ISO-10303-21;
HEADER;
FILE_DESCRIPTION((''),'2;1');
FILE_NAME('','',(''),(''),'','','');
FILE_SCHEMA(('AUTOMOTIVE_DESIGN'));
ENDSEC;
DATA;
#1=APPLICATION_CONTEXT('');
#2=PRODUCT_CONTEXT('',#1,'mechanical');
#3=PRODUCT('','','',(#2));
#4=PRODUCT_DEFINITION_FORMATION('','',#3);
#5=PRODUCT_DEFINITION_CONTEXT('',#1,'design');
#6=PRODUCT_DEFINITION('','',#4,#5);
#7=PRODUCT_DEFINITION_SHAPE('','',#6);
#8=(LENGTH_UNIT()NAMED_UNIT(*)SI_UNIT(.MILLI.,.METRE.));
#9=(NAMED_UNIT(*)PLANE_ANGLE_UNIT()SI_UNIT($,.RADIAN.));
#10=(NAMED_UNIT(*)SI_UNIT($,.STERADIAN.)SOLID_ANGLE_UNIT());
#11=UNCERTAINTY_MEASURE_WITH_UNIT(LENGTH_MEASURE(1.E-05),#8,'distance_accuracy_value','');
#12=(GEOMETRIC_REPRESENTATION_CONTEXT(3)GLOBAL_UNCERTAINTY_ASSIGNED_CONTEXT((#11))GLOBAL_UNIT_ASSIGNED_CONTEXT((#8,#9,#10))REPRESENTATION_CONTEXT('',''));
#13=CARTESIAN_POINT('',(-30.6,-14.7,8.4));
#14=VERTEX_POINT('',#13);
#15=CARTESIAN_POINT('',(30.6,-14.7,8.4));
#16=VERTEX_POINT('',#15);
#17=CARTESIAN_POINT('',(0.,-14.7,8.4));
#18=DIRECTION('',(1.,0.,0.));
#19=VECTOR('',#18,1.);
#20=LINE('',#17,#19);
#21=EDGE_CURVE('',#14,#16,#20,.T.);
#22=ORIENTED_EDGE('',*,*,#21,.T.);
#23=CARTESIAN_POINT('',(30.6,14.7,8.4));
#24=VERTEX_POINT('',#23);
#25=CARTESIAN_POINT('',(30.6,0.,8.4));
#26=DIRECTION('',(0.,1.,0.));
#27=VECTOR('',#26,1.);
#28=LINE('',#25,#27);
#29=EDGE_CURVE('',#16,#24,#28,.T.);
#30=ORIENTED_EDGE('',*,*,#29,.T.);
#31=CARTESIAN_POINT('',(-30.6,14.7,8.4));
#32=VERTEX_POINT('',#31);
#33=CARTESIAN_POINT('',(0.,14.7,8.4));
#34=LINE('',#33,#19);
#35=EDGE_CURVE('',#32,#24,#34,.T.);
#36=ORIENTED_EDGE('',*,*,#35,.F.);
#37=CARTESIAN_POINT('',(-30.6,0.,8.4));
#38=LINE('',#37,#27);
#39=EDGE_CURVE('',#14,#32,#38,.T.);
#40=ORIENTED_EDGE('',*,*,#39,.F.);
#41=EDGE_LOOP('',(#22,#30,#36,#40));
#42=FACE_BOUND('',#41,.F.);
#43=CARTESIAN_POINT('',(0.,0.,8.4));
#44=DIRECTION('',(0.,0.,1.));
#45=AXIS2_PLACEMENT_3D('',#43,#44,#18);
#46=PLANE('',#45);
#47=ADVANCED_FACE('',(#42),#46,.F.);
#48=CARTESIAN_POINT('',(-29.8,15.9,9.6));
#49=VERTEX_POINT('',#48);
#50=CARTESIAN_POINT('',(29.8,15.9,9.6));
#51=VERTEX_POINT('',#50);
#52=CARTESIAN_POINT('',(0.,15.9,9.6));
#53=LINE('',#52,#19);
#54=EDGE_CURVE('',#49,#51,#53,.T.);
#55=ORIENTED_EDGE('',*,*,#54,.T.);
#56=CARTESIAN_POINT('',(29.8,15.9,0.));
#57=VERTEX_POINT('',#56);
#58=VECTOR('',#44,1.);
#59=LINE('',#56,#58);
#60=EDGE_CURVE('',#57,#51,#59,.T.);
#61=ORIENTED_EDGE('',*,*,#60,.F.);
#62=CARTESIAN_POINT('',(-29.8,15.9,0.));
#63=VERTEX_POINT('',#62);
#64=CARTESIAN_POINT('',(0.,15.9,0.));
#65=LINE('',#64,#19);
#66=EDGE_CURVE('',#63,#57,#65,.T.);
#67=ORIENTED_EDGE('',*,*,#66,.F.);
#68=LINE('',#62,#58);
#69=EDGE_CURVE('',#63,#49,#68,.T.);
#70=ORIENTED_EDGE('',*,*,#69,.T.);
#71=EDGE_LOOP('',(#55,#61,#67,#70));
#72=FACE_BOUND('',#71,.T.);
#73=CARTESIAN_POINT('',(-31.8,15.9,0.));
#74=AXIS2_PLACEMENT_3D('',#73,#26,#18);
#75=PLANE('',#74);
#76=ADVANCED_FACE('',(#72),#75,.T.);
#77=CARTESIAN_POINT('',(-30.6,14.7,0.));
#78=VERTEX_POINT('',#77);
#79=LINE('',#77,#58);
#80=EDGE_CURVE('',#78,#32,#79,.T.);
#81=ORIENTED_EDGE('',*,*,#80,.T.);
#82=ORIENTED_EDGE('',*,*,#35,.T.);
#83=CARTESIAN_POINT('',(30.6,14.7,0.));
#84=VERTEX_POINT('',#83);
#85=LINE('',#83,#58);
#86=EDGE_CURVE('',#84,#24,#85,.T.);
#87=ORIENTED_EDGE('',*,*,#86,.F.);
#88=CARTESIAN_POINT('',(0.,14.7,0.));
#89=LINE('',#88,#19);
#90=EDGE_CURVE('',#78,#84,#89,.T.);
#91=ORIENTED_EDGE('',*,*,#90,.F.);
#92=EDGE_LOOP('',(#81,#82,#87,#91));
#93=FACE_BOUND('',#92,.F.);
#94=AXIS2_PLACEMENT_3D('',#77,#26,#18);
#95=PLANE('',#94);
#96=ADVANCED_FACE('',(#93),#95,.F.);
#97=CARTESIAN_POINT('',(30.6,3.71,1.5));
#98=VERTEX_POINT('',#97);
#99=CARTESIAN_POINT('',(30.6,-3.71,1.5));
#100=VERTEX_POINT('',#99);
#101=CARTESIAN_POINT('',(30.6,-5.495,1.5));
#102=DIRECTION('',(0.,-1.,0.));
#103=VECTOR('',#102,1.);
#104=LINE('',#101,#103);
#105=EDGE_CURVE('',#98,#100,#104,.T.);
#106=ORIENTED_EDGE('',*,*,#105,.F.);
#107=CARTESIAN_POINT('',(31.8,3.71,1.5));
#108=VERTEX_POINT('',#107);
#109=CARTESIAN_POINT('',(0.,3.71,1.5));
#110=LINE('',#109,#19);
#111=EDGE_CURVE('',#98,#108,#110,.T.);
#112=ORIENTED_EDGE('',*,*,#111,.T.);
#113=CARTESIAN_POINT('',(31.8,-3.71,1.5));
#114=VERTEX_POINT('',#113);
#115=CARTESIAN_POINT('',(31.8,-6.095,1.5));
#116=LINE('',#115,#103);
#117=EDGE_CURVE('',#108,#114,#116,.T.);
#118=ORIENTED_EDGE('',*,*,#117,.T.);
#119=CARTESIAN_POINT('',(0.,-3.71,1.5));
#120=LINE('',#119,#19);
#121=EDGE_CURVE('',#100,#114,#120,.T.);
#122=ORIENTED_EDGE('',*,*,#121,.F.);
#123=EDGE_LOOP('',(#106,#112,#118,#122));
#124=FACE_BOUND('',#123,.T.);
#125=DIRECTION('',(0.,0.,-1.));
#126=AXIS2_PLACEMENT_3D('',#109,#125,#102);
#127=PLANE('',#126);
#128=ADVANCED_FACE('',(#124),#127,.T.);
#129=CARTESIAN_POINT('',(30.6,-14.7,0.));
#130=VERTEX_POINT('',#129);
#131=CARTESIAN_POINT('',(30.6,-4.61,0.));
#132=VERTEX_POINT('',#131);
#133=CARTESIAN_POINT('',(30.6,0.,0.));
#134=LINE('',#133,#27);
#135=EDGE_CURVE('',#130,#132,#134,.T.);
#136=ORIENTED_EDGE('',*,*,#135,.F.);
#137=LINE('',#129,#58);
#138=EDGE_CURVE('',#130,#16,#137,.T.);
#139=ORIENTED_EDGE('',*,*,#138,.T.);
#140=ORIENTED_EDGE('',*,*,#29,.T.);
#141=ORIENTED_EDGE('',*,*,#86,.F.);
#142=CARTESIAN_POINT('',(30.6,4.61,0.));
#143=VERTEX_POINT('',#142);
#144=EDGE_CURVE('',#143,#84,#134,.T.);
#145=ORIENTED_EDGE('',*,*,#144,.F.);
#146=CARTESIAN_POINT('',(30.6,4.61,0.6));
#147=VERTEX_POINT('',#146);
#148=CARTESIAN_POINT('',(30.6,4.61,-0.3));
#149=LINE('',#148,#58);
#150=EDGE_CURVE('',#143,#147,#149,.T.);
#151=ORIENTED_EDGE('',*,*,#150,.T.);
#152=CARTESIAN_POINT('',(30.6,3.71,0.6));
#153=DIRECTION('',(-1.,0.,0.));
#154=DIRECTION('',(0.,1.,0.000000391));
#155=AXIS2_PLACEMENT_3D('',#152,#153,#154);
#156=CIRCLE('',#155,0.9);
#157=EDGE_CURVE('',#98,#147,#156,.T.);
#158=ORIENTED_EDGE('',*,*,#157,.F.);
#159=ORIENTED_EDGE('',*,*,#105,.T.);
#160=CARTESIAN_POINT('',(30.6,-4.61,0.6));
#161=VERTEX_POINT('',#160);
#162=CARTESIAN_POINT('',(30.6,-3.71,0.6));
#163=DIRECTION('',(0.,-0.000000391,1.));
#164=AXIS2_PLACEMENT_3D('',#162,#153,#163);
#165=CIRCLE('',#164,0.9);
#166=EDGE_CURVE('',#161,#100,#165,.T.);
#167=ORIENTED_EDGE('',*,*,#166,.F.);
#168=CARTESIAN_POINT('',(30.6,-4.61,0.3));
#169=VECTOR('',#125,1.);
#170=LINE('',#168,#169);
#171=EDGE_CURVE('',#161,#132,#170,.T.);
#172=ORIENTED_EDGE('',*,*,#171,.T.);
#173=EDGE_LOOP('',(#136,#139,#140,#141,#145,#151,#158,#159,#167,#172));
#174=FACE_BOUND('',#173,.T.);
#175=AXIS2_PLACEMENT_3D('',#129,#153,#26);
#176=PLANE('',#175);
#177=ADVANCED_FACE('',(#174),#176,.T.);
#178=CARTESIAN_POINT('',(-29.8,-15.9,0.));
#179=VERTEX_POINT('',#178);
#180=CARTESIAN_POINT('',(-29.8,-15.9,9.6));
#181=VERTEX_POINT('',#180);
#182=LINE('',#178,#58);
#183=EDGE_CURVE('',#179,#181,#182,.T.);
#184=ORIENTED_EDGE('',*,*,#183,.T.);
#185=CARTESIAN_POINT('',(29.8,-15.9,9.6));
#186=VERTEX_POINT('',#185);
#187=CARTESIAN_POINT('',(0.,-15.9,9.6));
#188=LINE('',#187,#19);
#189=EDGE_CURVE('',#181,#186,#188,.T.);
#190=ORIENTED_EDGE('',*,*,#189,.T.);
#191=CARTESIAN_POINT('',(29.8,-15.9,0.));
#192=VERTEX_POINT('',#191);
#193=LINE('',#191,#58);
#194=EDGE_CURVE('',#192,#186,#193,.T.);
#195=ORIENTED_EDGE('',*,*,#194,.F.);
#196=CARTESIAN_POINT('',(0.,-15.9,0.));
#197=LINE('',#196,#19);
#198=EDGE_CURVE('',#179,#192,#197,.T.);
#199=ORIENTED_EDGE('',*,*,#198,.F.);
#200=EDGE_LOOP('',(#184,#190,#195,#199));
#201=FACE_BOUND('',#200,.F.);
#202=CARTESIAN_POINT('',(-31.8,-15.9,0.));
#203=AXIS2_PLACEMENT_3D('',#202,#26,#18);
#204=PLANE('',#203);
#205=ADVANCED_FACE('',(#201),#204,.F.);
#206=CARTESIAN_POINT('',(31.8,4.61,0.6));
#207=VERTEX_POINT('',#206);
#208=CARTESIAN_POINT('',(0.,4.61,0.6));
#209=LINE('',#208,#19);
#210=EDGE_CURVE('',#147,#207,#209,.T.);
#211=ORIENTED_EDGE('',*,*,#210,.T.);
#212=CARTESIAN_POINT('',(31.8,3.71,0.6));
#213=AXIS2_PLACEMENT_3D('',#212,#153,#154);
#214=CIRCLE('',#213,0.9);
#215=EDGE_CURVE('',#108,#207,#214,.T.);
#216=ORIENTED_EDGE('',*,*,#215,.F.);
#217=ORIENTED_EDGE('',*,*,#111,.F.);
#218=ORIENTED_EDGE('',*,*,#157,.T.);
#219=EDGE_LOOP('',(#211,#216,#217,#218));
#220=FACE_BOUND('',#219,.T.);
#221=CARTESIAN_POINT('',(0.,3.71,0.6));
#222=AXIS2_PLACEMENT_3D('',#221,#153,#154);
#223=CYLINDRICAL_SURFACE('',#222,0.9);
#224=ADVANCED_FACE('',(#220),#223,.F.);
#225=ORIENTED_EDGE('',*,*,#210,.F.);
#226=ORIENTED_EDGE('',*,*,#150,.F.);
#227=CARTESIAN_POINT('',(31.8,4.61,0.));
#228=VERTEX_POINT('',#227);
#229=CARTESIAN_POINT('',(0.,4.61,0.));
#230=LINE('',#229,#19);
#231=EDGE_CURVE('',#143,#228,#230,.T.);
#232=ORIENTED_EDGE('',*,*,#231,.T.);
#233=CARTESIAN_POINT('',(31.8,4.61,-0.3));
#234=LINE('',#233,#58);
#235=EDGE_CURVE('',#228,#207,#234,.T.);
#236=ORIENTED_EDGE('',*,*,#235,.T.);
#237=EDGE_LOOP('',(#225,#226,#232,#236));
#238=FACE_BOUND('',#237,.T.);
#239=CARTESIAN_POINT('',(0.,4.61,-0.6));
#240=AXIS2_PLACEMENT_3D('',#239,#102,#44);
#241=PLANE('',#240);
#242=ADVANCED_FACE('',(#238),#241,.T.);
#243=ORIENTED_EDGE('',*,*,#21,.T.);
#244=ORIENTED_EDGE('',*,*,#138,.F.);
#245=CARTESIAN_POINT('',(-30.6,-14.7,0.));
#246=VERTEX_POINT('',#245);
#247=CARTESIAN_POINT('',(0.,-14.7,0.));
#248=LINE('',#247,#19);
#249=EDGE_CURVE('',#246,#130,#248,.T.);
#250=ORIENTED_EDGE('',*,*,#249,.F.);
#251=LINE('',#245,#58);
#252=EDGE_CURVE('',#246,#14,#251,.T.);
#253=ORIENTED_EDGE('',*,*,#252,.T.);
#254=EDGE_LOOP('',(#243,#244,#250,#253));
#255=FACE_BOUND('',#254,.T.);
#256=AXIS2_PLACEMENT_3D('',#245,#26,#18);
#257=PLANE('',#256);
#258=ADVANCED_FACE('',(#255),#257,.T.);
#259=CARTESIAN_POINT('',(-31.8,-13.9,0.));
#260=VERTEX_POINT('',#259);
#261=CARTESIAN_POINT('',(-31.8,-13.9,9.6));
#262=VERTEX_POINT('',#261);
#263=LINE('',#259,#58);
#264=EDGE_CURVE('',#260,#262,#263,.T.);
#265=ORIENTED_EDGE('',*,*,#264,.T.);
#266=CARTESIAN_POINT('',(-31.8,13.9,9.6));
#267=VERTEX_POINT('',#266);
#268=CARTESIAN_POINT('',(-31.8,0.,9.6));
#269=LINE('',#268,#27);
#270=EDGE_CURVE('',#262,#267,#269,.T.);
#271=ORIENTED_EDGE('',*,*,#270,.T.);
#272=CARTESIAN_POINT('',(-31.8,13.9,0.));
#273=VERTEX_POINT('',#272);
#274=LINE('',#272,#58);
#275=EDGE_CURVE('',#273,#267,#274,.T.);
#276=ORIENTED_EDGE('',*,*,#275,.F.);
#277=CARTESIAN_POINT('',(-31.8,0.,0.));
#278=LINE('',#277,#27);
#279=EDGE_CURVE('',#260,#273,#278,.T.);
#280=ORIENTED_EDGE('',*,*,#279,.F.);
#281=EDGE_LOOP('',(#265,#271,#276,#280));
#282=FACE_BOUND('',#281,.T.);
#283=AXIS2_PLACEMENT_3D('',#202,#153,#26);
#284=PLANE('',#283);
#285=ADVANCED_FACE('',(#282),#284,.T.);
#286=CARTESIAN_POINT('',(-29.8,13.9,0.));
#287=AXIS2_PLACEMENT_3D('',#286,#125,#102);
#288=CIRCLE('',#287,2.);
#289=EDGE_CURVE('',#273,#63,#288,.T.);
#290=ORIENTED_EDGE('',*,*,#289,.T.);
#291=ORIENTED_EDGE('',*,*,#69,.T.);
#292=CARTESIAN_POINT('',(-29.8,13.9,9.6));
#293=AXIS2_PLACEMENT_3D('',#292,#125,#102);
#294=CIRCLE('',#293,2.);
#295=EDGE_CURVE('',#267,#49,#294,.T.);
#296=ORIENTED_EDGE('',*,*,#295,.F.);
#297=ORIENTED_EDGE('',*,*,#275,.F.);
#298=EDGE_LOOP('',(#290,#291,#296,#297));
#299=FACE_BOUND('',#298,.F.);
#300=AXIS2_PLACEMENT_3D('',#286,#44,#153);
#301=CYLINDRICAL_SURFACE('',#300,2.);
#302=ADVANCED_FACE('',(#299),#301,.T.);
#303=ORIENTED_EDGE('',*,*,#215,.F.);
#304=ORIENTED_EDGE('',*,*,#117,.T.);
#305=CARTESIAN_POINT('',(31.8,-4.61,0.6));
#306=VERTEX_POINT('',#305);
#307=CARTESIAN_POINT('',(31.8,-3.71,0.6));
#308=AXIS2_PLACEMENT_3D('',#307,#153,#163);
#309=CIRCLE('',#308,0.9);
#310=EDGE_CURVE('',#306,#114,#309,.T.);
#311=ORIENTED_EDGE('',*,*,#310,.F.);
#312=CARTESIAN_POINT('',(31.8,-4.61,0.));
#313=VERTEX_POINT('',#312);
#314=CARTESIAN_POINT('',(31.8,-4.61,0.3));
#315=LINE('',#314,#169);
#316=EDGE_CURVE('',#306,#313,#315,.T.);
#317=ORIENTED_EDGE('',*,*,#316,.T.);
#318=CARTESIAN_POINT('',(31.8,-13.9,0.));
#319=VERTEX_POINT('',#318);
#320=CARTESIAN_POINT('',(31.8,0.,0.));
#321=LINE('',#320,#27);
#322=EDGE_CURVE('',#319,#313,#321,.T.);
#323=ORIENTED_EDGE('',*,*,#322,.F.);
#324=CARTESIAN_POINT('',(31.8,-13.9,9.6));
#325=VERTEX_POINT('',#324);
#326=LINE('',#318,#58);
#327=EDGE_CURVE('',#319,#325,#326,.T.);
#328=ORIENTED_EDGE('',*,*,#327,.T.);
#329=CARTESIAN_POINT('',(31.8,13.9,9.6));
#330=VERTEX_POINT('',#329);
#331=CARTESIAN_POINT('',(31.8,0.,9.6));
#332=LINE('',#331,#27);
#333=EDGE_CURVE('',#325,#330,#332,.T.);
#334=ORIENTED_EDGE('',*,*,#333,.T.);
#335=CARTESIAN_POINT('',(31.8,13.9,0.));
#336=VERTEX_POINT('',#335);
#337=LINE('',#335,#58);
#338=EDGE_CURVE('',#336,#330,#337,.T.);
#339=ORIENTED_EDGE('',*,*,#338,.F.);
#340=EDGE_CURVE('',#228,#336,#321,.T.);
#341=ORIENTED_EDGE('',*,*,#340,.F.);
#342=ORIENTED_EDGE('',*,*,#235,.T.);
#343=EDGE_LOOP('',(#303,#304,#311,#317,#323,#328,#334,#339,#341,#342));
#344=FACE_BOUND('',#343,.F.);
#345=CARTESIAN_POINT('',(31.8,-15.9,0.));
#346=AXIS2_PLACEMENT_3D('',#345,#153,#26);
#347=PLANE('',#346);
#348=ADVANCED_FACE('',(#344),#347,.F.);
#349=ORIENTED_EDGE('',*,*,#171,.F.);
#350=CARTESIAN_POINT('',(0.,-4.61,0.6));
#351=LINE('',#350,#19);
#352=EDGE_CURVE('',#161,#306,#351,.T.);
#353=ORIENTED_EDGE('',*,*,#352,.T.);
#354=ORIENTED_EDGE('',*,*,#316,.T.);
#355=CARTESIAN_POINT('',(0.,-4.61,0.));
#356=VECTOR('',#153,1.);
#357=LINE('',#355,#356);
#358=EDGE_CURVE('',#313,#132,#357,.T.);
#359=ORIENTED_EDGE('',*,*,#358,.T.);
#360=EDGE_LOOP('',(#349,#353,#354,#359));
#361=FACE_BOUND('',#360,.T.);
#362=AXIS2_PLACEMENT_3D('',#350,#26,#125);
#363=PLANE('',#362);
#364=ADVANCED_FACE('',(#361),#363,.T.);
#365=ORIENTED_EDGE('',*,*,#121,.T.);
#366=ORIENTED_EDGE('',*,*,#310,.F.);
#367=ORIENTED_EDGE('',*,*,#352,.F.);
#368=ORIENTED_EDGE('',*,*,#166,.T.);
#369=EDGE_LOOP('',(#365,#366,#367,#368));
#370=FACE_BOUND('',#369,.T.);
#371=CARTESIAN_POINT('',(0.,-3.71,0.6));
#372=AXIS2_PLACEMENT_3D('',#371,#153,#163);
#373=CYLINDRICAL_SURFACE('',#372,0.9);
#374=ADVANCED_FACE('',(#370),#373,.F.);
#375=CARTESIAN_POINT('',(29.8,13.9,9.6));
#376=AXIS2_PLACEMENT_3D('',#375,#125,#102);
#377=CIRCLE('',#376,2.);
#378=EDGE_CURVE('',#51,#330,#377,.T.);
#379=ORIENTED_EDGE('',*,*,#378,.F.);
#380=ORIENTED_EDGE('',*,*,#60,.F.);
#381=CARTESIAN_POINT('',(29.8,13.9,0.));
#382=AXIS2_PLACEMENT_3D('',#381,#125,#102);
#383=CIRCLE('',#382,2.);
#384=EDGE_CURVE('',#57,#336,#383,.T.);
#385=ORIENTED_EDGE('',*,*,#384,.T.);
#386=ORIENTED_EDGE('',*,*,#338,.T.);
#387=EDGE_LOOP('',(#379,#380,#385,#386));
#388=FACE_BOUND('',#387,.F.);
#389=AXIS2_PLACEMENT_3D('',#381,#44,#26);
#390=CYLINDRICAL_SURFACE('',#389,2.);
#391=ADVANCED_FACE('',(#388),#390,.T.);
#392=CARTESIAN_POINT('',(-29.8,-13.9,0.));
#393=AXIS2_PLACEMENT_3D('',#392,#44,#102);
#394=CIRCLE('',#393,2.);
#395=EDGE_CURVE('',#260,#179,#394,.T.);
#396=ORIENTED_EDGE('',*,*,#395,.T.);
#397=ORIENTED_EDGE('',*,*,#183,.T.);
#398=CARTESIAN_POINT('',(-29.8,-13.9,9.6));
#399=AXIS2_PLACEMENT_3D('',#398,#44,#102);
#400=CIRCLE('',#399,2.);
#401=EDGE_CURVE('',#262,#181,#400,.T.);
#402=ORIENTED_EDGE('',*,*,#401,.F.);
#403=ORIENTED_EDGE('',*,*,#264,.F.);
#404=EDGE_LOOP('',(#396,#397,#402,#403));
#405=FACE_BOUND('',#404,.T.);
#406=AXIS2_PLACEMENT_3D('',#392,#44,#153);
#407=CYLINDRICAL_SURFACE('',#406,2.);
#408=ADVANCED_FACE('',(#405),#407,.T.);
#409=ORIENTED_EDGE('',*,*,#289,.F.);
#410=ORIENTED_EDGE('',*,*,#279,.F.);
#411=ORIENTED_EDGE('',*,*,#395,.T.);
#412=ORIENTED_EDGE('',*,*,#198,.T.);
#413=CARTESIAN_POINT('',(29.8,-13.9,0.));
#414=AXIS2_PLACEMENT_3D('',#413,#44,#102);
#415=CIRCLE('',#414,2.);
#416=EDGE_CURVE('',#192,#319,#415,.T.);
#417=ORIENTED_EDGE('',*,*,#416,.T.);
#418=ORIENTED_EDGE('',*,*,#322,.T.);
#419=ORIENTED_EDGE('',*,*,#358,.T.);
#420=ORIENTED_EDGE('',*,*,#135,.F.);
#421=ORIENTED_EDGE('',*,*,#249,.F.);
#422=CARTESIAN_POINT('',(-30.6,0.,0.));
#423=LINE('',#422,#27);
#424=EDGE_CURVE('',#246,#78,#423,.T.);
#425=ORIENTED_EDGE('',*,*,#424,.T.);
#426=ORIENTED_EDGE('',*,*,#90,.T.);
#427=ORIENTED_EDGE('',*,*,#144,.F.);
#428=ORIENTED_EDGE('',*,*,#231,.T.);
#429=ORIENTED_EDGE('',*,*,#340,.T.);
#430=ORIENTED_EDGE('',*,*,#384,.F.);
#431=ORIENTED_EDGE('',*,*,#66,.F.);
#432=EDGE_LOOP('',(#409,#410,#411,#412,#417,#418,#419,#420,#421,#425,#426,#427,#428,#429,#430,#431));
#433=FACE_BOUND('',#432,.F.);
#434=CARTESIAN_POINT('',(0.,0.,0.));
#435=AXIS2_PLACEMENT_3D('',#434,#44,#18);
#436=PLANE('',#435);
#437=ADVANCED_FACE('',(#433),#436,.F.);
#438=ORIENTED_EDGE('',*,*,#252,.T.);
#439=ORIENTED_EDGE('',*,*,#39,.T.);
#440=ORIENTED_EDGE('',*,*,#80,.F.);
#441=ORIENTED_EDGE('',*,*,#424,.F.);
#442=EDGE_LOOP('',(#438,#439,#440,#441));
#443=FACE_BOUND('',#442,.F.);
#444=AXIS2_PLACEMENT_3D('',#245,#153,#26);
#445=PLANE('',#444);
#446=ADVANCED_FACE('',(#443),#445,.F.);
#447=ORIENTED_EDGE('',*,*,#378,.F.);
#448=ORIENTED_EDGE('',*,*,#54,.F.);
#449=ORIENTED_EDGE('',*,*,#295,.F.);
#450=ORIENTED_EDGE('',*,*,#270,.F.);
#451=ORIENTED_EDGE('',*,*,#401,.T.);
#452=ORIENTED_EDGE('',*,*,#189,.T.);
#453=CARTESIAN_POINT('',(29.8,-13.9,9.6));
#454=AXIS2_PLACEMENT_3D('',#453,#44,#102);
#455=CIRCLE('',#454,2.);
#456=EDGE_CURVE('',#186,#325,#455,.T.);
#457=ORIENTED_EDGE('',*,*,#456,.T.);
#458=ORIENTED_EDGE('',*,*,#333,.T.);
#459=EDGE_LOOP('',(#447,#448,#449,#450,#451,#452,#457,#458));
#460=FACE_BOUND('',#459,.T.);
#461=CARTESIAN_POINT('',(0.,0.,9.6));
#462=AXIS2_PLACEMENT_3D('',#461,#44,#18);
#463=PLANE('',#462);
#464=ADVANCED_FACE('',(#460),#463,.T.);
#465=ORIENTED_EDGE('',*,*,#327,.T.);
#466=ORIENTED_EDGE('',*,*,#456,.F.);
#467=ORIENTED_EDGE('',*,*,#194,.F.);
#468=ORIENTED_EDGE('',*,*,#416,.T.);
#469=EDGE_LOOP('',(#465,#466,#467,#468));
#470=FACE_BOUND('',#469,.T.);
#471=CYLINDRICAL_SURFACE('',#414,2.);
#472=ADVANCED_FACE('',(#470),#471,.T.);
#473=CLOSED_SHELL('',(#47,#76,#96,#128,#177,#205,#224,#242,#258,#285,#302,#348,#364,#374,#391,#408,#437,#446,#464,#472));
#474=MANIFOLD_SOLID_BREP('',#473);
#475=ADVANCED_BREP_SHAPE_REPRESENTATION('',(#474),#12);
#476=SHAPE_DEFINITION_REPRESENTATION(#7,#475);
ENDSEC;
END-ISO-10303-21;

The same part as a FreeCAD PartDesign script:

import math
import FreeCAD as App
import Part
import Sketcher
from FreeCAD import Vector


def edges_at(feature, points):
    """Names of the edges that pass closest to the given points."""
    edges = feature.Shape.Edges
    near = lambda p: min(range(len(edges)), key=lambda i: edges[i].distToShape(Part.Vertex(*p))[0])
    return sorted({f"Edge{near(p) + 1}" for p in points})


def add_polygon(sketch, points):
    """Adds a closed chain of lines whose ends are joined by coincident constraints."""
    first, n = sketch.GeometryCount, len(points)
    for a, b in zip(points, points[1:] + points[:1]):
        sketch.addGeometry(Part.LineSegment(App.Vector(*a, 0), App.Vector(*b, 0)), False)
    for i in range(n):
        sketch.addConstraint(Sketcher.Constraint("Coincident", first + i, 2, first + (i + 1) % n, 1))

doc = App.newDocument("Part")
body = doc.addObject("PartDesign::Body", "Body")

sketch1 = doc.addObject("Sketcher::SketchObject", "Sketch")
body.addObject(sketch1)
sketch1.AttachmentSupport = (doc.XY_Plane, [""])
sketch1.MapMode = "FlatFace"
add_polygon(sketch1, [(-32, 16), (-32, -16), (32, -16), (32, 16)])
sketch1.addConstraint([
    Sketcher.Constraint("Vertical", 0),
    Sketcher.Constraint("Horizontal", 1),
    Sketcher.Constraint("Vertical", 2),
    Sketcher.Constraint("Horizontal", 3),
    Sketcher.Constraint("Symmetric", 0, 2, 2, 2, -1, 1),
    Sketcher.Constraint("DistanceX", 1, 1, 1, 2, 63.6),
    Sketcher.Constraint("DistanceY", 0, 2, 0, 1, 31.8),
])
pad1 = doc.addObject("PartDesign::Pad", "Pad")
body.addObject(pad1)
pad1.Profile = sketch1
pad1.Length = 9.6

sketch2 = doc.addObject("Sketcher::SketchObject", "Sketch001")
body.addObject(sketch2)
sketch2.AttachmentSupport = (doc.XY_Plane, [""])
sketch2.MapMode = "FlatFace"
add_polygon(sketch2, [(-31, 15), (-31, -15), (31, -15), (31, 15)])
sketch2.addConstraint([
    Sketcher.Constraint("Vertical", 0),
    Sketcher.Constraint("Horizontal", 1),
    Sketcher.Constraint("Vertical", 2),
    Sketcher.Constraint("Horizontal", 3),
    Sketcher.Constraint("Symmetric", 0, 2, 2, 2, -1, 1),
    Sketcher.Constraint("DistanceX", 1, 1, 1, 2, 61.2),
    Sketcher.Constraint("DistanceY", 0, 2, 0, 1, 29.4),
])
pocket1 = doc.addObject("PartDesign::Pocket", "Pocket")
body.addObject(pocket1)
pocket1.Profile = sketch2
pocket1.Length = 8.4
pocket1.Reversed = True
doc.recompute()

fillet = doc.addObject("PartDesign::Fillet", "Fillet")
body.addObject(fillet)
fillet.Base = (pocket1, edges_at(pocket1, [
    (-31.8, -15.9, 4.8),
    (-31.8, 15.9, 4.8),
    (31.8, 15.9, 4.8),
    (31.8, -15.9, 4.8),
]))
fillet.Radius = 2

sketch3 = doc.addObject("Sketcher::SketchObject", "Sketch002")
body.addObject(sketch3)
sketch3.AttachmentSupport = (doc.YZ_Plane, [""])
sketch3.MapMode = "FlatFace"
sketch3.addGeometry([
    Part.LineSegment(Vector(3.7, 1.5, 0), Vector(-3.7, 1.5, 0)),
    Part.ArcOfCircle(Part.Circle(Vector(-3.7, 0.6, 0), Vector(0, 0, 1), 0.9), math.radians(90), math.radians(180)),
    Part.LineSegment(Vector(-4.6, 0.6, 0), Vector(-4.6, -0.6, 0)),
    Part.ArcOfCircle(Part.Circle(Vector(-3.7, -0.6, 0), Vector(0, 0, 1), 0.9), math.radians(-180), math.radians(-90)),
    Part.LineSegment(Vector(-3.7, -1.5, 0), Vector(3.7, -1.5, 0)),
    Part.ArcOfCircle(Part.Circle(Vector(3.7, -0.6, 0), Vector(0, 0, 1), 0.9), math.radians(-90), math.radians(0)),
    Part.LineSegment(Vector(4.6, -0.6, 0), Vector(4.6, 0.6, 0)),
    Part.ArcOfCircle(Part.Circle(Vector(3.7, 0.6, 0), Vector(0, 0, 1), 0.9), math.radians(0), math.radians(90)),
], False)
sketch3.addConstraint([
    Sketcher.Constraint("Tangent", 0, 2, 1, 1),
    Sketcher.Constraint("Tangent", 1, 2, 2, 1),
    Sketcher.Constraint("Tangent", 2, 2, 3, 1),
    Sketcher.Constraint("Tangent", 3, 2, 4, 1),
    Sketcher.Constraint("Tangent", 4, 2, 5, 1),
    Sketcher.Constraint("Tangent", 5, 2, 6, 1),
    Sketcher.Constraint("Tangent", 6, 2, 7, 1),
    Sketcher.Constraint("Tangent", 7, 2, 0, 1),
    Sketcher.Constraint("Horizontal", 0),
    Sketcher.Constraint("Vertical", 2),
    Sketcher.Constraint("Horizontal", 4),
    Sketcher.Constraint("Vertical", 6),
    Sketcher.Constraint("Equal", 1, 3),
    Sketcher.Constraint("Equal", 3, 5),
    Sketcher.Constraint("Equal", 5, 7),
    Sketcher.Constraint("Symmetric", 1, 3, 5, 3, -1, 1),
    Sketcher.Constraint("Radius", 1, 0.9),
    Sketcher.Constraint("DistanceY", 2, 2, 2, 1, 1.2),
    Sketcher.Constraint("DistanceX", 0, 2, 0, 1, 7.42),
])
pocket2 = doc.addObject("PartDesign::Pocket", "Pocket001")
body.addObject(pocket2)
pocket2.Profile = sketch3
pocket2.Length = 32
pocket2.Reversed = True

doc.recompute()
